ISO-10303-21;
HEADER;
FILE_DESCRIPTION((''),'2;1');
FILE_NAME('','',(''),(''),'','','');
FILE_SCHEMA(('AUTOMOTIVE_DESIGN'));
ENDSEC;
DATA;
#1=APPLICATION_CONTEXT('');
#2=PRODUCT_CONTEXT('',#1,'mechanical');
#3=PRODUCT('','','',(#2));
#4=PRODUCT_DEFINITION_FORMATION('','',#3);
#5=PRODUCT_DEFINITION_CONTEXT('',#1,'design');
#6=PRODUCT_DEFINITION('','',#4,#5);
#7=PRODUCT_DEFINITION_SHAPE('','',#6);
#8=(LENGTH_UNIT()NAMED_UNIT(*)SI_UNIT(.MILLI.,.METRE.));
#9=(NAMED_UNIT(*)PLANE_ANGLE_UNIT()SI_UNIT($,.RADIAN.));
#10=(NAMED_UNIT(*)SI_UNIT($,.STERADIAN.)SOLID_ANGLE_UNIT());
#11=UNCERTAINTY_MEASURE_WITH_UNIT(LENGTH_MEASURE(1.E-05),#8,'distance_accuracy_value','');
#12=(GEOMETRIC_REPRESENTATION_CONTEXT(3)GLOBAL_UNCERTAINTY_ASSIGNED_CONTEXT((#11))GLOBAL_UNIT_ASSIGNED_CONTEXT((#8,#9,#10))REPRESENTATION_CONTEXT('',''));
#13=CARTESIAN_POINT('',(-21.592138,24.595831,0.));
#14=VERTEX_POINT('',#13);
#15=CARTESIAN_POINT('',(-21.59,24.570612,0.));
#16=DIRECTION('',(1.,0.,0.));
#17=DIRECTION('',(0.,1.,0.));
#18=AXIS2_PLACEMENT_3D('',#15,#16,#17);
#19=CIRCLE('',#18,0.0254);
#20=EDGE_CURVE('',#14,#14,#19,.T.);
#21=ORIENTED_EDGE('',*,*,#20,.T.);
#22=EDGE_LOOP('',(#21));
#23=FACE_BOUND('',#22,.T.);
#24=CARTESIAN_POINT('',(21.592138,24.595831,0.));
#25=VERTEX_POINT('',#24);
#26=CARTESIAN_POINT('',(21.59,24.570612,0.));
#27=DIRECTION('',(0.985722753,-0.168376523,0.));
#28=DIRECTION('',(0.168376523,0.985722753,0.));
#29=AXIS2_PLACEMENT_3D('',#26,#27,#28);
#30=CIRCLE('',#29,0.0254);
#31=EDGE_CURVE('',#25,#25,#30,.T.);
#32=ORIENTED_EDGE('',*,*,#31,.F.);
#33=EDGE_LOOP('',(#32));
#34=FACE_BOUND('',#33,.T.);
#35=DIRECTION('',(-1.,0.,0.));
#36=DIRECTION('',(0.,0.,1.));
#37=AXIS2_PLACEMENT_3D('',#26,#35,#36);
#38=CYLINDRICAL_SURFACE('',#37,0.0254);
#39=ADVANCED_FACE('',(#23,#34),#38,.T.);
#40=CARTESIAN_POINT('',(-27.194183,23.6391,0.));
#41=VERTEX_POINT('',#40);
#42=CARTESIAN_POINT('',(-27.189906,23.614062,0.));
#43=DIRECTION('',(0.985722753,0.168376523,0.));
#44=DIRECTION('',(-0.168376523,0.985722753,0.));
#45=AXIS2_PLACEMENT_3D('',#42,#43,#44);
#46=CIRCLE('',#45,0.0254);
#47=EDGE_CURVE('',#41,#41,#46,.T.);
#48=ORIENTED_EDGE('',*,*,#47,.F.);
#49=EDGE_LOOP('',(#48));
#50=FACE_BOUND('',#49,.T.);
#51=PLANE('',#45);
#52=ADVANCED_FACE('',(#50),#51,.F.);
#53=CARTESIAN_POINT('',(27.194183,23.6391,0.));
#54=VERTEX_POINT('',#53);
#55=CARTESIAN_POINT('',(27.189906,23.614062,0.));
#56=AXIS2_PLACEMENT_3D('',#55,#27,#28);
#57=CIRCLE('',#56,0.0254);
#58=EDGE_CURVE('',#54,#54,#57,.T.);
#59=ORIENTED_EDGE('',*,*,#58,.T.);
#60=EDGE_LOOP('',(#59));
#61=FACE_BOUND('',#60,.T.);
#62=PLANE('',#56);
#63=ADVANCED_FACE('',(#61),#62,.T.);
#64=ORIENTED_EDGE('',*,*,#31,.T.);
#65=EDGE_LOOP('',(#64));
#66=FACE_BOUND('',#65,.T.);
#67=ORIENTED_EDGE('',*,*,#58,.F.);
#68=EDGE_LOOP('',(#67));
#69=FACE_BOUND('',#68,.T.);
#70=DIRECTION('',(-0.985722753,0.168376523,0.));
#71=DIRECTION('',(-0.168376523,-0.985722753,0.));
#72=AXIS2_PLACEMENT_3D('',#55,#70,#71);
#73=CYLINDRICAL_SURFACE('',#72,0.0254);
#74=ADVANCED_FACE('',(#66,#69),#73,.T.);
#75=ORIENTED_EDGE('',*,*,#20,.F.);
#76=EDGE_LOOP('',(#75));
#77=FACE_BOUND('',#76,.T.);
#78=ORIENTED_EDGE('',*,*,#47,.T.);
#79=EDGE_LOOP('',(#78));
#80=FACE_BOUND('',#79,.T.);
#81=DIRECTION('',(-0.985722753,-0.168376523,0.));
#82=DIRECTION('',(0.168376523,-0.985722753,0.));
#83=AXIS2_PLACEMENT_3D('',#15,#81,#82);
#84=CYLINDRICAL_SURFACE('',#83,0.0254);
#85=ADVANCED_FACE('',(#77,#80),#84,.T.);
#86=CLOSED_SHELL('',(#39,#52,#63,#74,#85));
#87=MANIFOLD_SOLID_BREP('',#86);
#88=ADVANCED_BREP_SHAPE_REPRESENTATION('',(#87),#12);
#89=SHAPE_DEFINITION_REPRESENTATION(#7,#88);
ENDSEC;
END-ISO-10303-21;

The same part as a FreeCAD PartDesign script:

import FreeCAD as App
import Part
import Sketcher

V = App.Vector
Q = App.Units.Quantity

doc = App.newDocument("Part")
params = doc.addObject("Spreadsheet::Sheet", "Params")
for row, (alias, value) in enumerate([
    ("sketch1_diameter", "0.002 in"),
    ("sketch2_width", "1.7 in"),
], start=1):
    params.set(f"A{row}", alias)
    params.set(f"B{row}", "=" + value)
    params.setAlias(f"B{row}", alias)

body = doc.addObject("PartDesign::Body", "Body")

# Sketch on an angled plane
sketch1 = body.newObject("Sketcher::SketchObject", "Sketch")
sketch1.Placement = App.Placement(V(27.189906, 23.614062, 0), App.Rotation(V(-0.168376523, -0.985722753, 0), V(0, 0, 0.999999999), V(-0.985722753, 0.168376523, 0), "ZXY"))
sketch1.addGeometry(Part.Circle(V(0, 0, 0), V(0, 0, 1), 0.025), False)
sketch1.addConstraint(Sketcher.Constraint("Coincident", 0, 3, -1, 1))
sketch1.addConstraint(Sketcher.Constraint("Diameter", 0, Q("0.002 in")))
sketch1.setExpression("Constraints[1]", "Params.sketch1_diameter")

# Sketch on XY plane
sketch2 = body.newObject("Sketcher::SketchObject", "Sketch001")
sketch2.AttachmentSupport = (doc.getObject("XY_Plane"), [""])
sketch2.MapMode = "FlatFace"
sketch2.addGeometry(Part.LineSegment(V(27, 24, 0), V(22, 25, 0)), False)
sketch2.addGeometry(Part.LineSegment(V(22, 25, 0), V(-22, 25, 0)), False)
sketch2.addGeometry(Part.LineSegment(V(-22, 25, 0), V(-27, 24, 0)), False)
sketch2.addConstraint(Sketcher.Constraint("Coincident", 0, 2, 1, 1))
sketch2.addConstraint(Sketcher.Constraint("Coincident", 1, 2, 2, 1))
sketch2.addConstraint(Sketcher.Constraint("Horizontal", 1))
sketch2.addConstraint(Sketcher.Constraint("Symmetric", 0, 1, 2, 2, -2))
sketch2.addConstraint(Sketcher.Constraint("Equal", 0, 2))
sketch2.addConstraint(Sketcher.Constraint("DistanceX", 1, 2, 1, 1, Q("1.7 in")))
sketch2.addConstraint(Sketcher.Constraint("DistanceY", 0, 1, 0, 2, 0.95655))
sketch2.addConstraint(Sketcher.Constraint("Distance", 0, 5.681016))
sketch2.addConstraint(Sketcher.Constraint("DistanceY", -1, 1, 0, 1, 23.614062))
sketch2.setExpression("Constraints[5]", "Params.sketch2_width")
doc.recompute()

additivepipe = body.newObject("PartDesign::AdditivePipe", "AdditivePipe")
additivepipe.Profile = sketch1
additivepipe.Spine = (sketch2, ["Edge1", "Edge2", "Edge3"])
additivepipe.Transition = "Right corner"

doc.recompute()
